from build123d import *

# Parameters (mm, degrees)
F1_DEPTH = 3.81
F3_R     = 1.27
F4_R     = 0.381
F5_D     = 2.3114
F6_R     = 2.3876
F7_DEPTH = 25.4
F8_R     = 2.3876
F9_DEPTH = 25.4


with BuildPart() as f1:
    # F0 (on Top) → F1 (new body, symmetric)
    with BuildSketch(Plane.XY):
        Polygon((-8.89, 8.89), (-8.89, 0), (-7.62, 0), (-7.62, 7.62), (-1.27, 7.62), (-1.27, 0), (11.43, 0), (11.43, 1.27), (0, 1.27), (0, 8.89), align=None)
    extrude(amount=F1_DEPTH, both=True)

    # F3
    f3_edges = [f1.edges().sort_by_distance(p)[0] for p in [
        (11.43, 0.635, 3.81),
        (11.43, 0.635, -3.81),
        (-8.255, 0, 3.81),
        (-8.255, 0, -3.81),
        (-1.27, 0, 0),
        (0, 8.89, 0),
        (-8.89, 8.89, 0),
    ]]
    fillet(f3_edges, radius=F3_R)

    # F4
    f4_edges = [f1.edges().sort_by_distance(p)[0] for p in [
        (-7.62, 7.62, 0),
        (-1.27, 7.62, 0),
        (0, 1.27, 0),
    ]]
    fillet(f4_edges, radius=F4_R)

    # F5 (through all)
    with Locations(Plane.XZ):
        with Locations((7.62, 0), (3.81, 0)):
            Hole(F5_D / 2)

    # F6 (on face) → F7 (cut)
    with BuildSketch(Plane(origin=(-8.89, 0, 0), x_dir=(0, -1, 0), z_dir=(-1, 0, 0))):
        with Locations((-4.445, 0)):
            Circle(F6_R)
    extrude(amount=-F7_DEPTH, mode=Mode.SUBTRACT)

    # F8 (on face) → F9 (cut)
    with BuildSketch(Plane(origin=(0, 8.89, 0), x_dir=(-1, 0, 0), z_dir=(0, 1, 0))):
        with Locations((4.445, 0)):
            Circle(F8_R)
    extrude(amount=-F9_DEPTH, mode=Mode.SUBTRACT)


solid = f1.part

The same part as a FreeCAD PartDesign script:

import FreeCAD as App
import Part
import Sketcher
Q = App.Units.Quantity


def edges_at(feature, points):
    """Names of the edges that pass closest to the given points."""
    edges = feature.Shape.Edges
    near = lambda p: min(range(len(edges)), key=lambda i: edges[i].distToShape(Part.Vertex(*p))[0])
    return sorted({f"Edge{near(p) + 1}" for p in points})

doc = App.newDocument("Part")
body = doc.addObject("PartDesign::Body", "Body")

# Sketch on XY plane
sketch1 = body.newObject("Sketcher::SketchObject", "Sketch")
sketch1.AttachmentSupport = (doc.getObject("XY_Plane"), [""])
sketch1.MapMode = "FlatFace"
sketch1.addGeometry([
    Part.LineSegment(App.Vector(-8.89, 8.89, 0), App.Vector(-8.89, 0, 0)),  # 0
    Part.LineSegment(App.Vector(-8.89, 0, 0), App.Vector(-7.62, 0, 0)),  # 1
    Part.LineSegment(App.Vector(-7.62, 0, 0), App.Vector(-7.62, 7.62, 0)),  # 2
    Part.LineSegment(App.Vector(-7.62, 7.62, 0), App.Vector(-1.27, 7.62, 0)),  # 3
    Part.LineSegment(App.Vector(-1.27, 7.62, 0), App.Vector(-1.27, 0, 0)),  # 4
    Part.LineSegment(App.Vector(-1.27, 0, 0), App.Vector(11.43, 0, 0)),  # 5
    Part.LineSegment(App.Vector(11.43, 0, 0), App.Vector(11.43, 1.27, 0)),  # 6
    Part.LineSegment(App.Vector(11.43, 1.27, 0), App.Vector(0, 1.27, 0)),  # 7
    Part.LineSegment(App.Vector(0, 1.27, 0), App.Vector(0, 8.89, 0)),  # 8
    Part.LineSegment(App.Vector(0, 8.89, 0), App.Vector(-8.89, 8.89, 0)),  # 9
], False)
sketch1.addConstraint([
    Sketcher.Constraint("Coincident", 0, 2, 1, 1),
    Sketcher.Constraint("Coincident", 1, 2, 2, 1),
    Sketcher.Constraint("Coincident", 2, 2, 3, 1),
    Sketcher.Constraint("Coincident", 3, 2, 4, 1),
    Sketcher.Constraint("Coincident", 4, 2, 5, 1),
    Sketcher.Constraint("Coincident", 5, 2, 6, 1),
    Sketcher.Constraint("Coincident", 6, 2, 7, 1),
    Sketcher.Constraint("Coincident", 7, 2, 8, 1),
    Sketcher.Constraint("Coincident", 8, 2, 9, 1),
    Sketcher.Constraint("Coincident", 9, 2, 0, 1),
    Sketcher.Constraint("Vertical", 0),
    Sketcher.Constraint("Horizontal", 1),
    Sketcher.Constraint("Vertical", 2),
    Sketcher.Constraint("Horizontal", 3),
    Sketcher.Constraint("Vertical", 4),
    Sketcher.Constraint("Horizontal", 5),
    Sketcher.Constraint("Vertical", 6),
    Sketcher.Constraint("Horizontal", 7),
    Sketcher.Constraint("Vertical", 8),
    Sketcher.Constraint("Horizontal", 9),
    Sketcher.Constraint("PointOnObject", 0, 2, -1),
    Sketcher.Constraint("PointOnObject", 4, 2, -1),
    Sketcher.Constraint("PointOnObject", 7, 2, -2),
    Sketcher.Constraint("Equal", 9, 0),
    Sketcher.Constraint("Equal", 1, 6),
    Sketcher.Constraint("Equal", 4, 8),
    Sketcher.Constraint("DistanceX", 5, 1, 5, 2, Q("0.5 in")),
    Sketcher.Constraint("DistanceY", 2, 1, 2, 2, Q("0.3 in")),
    Sketcher.Constraint("DistanceX", 1, 1, 1, 2, Q("0.05 in")),
    Sketcher.Constraint("DistanceX", 3, 1, 3, 2, Q("0.25 in")),
])
pad1 = body.newObject("PartDesign::Pad", "Pad")
pad1.Profile = sketch1
pad1.Length = Q("0.3 in")
pad1.Midplane = True
doc.recompute()

fillet = body.newObject("PartDesign::Fillet", "Fillet")
fillet.Base = (pad1, edges_at(pad1, [
    (11.43, 0.635, 3.81),
    (11.43, 0.635, -3.81),
    (-8.255, 0, 3.81),
    (-8.255, 0, -3.81),
    (-1.27, 0, 0),
    (0, 8.89, 0),
    (-8.89, 8.89, 0),
]))
fillet.Radius = Q("0.05 in")
doc.recompute()

fillet2 = body.newObject("PartDesign::Fillet", "Fillet001")
fillet2.Base = (fillet, edges_at(fillet, [(-7.62, 7.62, 0), (-1.27, 7.62, 0), (0, 1.27, 0)]))
fillet2.Radius = Q("0.015 in")

# Sketch on XZ plane
sketch2 = body.newObject("Sketcher::SketchObject", "Sketch001")
sketch2.AttachmentSupport = (doc.getObject("XZ_Plane"), [""])
sketch2.MapMode = "FlatFace"
sketch2.addGeometry([
    Part.Circle(App.Vector(7.62, 0, 0), App.Vector(0, 0, 1), 1.1557),
    Part.Circle(App.Vector(3.81, 0, 0), App.Vector(0, 0, 1), 1.1557),
], False)
sketch2.addConstraint([
    Sketcher.Constraint("Equal", 0, 1),
    Sketcher.Constraint("PointOnObject", 0, 3, -1),
    Sketcher.Constraint("PointOnObject", 1, 3, -1),
    Sketcher.Constraint("Diameter", 0, Q("0.091 in")),
    Sketcher.Constraint("DistanceX", -1, 1, 0, 3, Q("0.3 in")),
    Sketcher.Constraint("DistanceX", -1, 1, 1, 3, Q("0.15 in")),
])
doc.recompute()
hole = body.newObject("PartDesign::Hole", "Hole")
hole.Profile = sketch2
hole.ThreadType = "None"
hole.Diameter = Q("0.091 in")
hole.DepthType = "ThroughAll"

# Sketch on YZ plane
sketch3 = body.newObject("Sketcher::SketchObject", "Sketch002")
sketch3.AttachmentSupport = (doc.getObject("YZ_Plane"), [""])
sketch3.MapMode = "FlatFace"
sketch3.AttachmentOffset = App.Placement(App.Vector(0, 0, -0.35 * 25.4), App.Rotation())
sketch3.addGeometry(Part.Circle(App.Vector(4.445, 0, 0), App.Vector(0, 0, 1), 2.3876), False)
sketch3.addConstraint([
    Sketcher.Constraint("PointOnObject", 0, 3, -1),
    Sketcher.Constraint("Diameter", 0, Q("0.188 in")),
    Sketcher.Constraint("DistanceX", -1, 1, 0, 3, Q("0.175 in")),
])
pocket1 = body.newObject("PartDesign::Pocket", "Pocket")
pocket1.Profile = sketch3
pocket1.Length = Q("1 in")
pocket1.Reversed = True

# Sketch on XZ plane
sketch4 = body.newObject("Sketcher::SketchObject", "Sketch003")
sketch4.AttachmentSupport = (doc.getObject("XZ_Plane"), [""])
sketch4.MapMode = "FlatFace"
sketch4.AttachmentOffset = App.Placement(App.Vector(0, 0, -0.35 * 25.4), App.Rotation())
sketch4.addGeometry(Part.Circle(App.Vector(-4.445, 0, 0), App.Vector(0, 0, 1), 2.3876), False)
sketch4.addConstraint([
    Sketcher.Constraint("PointOnObject", 0, 3, -1),
    Sketcher.Constraint("Diameter", 0, Q("0.188 in")),
    Sketcher.Constraint("DistanceX", 0, 3, -1, 1, Q("0.175 in")),
])
pocket2 = body.newObject("PartDesign::Pocket", "Pocket001")
pocket2.Profile = sketch4
pocket2.Length = Q("1 in")
pocket2.Reversed = True

doc.recompute()
